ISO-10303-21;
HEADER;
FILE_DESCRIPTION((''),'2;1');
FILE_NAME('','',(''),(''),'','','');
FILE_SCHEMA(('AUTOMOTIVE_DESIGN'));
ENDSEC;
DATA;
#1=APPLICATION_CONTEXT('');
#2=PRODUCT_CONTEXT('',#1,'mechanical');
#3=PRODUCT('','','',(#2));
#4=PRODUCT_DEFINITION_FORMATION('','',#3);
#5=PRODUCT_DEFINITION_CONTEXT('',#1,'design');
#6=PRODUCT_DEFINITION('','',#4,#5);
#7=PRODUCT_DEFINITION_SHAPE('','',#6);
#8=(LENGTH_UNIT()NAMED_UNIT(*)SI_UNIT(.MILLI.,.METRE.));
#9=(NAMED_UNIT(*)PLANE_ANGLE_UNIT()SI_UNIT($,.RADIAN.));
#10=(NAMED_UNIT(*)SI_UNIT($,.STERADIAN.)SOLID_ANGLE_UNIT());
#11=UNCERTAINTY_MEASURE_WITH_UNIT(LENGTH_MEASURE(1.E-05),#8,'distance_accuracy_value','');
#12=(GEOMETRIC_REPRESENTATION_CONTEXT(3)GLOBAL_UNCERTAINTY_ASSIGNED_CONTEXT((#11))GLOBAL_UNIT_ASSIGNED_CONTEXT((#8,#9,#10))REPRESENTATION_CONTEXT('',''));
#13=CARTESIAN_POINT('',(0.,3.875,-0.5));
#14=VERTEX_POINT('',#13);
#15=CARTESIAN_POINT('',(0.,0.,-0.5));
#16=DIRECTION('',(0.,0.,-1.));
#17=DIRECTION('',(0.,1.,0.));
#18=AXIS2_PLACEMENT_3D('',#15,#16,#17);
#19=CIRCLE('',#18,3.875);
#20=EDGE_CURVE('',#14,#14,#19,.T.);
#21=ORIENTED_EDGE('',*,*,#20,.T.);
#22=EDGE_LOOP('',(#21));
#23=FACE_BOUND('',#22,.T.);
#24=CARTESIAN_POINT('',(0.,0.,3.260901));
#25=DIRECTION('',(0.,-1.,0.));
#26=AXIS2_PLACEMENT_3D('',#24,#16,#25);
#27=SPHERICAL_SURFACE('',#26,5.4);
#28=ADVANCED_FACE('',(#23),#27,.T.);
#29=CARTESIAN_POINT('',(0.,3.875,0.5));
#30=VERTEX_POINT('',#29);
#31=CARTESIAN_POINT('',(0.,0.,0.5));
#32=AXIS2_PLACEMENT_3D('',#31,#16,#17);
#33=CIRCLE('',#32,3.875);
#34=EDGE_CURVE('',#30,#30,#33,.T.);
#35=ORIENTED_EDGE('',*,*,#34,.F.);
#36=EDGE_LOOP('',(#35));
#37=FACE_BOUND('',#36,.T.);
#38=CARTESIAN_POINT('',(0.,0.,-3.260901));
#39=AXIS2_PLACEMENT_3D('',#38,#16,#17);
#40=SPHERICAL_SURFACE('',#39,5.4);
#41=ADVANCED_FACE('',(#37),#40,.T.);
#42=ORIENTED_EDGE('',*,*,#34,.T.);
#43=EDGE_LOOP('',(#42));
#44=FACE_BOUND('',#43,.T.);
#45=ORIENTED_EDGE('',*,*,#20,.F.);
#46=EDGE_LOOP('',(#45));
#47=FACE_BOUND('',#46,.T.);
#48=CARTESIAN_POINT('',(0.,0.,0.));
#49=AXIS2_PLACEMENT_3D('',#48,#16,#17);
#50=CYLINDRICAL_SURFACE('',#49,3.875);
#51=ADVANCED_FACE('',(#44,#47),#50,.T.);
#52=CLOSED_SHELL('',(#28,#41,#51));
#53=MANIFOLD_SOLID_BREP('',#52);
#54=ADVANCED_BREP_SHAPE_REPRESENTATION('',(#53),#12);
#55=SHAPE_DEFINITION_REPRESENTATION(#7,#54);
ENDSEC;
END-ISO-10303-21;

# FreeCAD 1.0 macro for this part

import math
import FreeCAD as App
import Part
import Sketcher

V = App.Vector
Q = App.Units.Quantity

doc = App.newDocument("Part")
body = doc.addObject("PartDesign::Body", "Body")

# Sketch on YZ plane
sketch1 = body.newObject("Sketcher::SketchObject", "Sketch")
sketch1.AttachmentSupport = (doc.getObject("YZ_Plane"), [""])
sketch1.MapMode = "FlatFace"
sketch1.addGeometry(Part.ArcOfCircle(Part.Circle(V(0, 3.260901, 0), V(0, 0, 1), 5.4), math.radians(-90), math.radians(-44.143924)), False)
sketch1.addGeometry(Part.LineSegment(V(3.875, -0.5, 0), V(3.875, 0.5, 0)), False)
sketch1.addGeometry(Part.ArcOfCircle(Part.Circle(V(0, -3.260901, 0), V(0, 0, 1), 5.4), math.radians(44.143924), math.radians(90)), False)
sketch1.addGeometry(Part.LineSegment(V(0, 2.139099, 0), V(0, -2.139099, 0)), False)
sketch1.addConstraint(Sketcher.Constraint("Coincident", 0, 2, 1, 1))
sketch1.addConstraint(Sketcher.Constraint("Coincident", 1, 2, 2, 1))
sketch1.addConstraint(Sketcher.Constraint("Coincident", 2, 2, 3, 1))
sketch1.addConstraint(Sketcher.Constraint("Coincident", 3, 2, 0, 1))
sketch1.addConstraint(Sketcher.Constraint("Vertical", 1))
sketch1.addConstraint(Sketcher.Constraint("Vertical", 3))
sketch1.addConstraint(Sketcher.Constraint("Equal", 0, 2))
sketch1.addConstraint(Sketcher.Constraint("Symmetric", 0, 3, 2, 3, -1, 1))
sketch1.addConstraint(Sketcher.Constraint("PointOnObject", 0, 3, -2))
sketch1.addConstraint(Sketcher.Constraint("PointOnObject", 2, 2, -2))
sketch1.addConstraint(Sketcher.Constraint("Radius", 0, Q("5.4 mm")))
sketch1.addConstraint(Sketcher.Constraint("DistanceY", 1, 1, 1, 2, Q("1 mm")))
sketch1.addConstraint(Sketcher.Constraint("DistanceY", 3, 2, 3, 1, Q("4.278198 mm")))
revolution = body.newObject("PartDesign::Revolution", "Revolution")
revolution.Profile = sketch1
revolution.ReferenceAxis = (sketch1, ["V_Axis"])
revolution.Angle = 360

doc.recompute()
